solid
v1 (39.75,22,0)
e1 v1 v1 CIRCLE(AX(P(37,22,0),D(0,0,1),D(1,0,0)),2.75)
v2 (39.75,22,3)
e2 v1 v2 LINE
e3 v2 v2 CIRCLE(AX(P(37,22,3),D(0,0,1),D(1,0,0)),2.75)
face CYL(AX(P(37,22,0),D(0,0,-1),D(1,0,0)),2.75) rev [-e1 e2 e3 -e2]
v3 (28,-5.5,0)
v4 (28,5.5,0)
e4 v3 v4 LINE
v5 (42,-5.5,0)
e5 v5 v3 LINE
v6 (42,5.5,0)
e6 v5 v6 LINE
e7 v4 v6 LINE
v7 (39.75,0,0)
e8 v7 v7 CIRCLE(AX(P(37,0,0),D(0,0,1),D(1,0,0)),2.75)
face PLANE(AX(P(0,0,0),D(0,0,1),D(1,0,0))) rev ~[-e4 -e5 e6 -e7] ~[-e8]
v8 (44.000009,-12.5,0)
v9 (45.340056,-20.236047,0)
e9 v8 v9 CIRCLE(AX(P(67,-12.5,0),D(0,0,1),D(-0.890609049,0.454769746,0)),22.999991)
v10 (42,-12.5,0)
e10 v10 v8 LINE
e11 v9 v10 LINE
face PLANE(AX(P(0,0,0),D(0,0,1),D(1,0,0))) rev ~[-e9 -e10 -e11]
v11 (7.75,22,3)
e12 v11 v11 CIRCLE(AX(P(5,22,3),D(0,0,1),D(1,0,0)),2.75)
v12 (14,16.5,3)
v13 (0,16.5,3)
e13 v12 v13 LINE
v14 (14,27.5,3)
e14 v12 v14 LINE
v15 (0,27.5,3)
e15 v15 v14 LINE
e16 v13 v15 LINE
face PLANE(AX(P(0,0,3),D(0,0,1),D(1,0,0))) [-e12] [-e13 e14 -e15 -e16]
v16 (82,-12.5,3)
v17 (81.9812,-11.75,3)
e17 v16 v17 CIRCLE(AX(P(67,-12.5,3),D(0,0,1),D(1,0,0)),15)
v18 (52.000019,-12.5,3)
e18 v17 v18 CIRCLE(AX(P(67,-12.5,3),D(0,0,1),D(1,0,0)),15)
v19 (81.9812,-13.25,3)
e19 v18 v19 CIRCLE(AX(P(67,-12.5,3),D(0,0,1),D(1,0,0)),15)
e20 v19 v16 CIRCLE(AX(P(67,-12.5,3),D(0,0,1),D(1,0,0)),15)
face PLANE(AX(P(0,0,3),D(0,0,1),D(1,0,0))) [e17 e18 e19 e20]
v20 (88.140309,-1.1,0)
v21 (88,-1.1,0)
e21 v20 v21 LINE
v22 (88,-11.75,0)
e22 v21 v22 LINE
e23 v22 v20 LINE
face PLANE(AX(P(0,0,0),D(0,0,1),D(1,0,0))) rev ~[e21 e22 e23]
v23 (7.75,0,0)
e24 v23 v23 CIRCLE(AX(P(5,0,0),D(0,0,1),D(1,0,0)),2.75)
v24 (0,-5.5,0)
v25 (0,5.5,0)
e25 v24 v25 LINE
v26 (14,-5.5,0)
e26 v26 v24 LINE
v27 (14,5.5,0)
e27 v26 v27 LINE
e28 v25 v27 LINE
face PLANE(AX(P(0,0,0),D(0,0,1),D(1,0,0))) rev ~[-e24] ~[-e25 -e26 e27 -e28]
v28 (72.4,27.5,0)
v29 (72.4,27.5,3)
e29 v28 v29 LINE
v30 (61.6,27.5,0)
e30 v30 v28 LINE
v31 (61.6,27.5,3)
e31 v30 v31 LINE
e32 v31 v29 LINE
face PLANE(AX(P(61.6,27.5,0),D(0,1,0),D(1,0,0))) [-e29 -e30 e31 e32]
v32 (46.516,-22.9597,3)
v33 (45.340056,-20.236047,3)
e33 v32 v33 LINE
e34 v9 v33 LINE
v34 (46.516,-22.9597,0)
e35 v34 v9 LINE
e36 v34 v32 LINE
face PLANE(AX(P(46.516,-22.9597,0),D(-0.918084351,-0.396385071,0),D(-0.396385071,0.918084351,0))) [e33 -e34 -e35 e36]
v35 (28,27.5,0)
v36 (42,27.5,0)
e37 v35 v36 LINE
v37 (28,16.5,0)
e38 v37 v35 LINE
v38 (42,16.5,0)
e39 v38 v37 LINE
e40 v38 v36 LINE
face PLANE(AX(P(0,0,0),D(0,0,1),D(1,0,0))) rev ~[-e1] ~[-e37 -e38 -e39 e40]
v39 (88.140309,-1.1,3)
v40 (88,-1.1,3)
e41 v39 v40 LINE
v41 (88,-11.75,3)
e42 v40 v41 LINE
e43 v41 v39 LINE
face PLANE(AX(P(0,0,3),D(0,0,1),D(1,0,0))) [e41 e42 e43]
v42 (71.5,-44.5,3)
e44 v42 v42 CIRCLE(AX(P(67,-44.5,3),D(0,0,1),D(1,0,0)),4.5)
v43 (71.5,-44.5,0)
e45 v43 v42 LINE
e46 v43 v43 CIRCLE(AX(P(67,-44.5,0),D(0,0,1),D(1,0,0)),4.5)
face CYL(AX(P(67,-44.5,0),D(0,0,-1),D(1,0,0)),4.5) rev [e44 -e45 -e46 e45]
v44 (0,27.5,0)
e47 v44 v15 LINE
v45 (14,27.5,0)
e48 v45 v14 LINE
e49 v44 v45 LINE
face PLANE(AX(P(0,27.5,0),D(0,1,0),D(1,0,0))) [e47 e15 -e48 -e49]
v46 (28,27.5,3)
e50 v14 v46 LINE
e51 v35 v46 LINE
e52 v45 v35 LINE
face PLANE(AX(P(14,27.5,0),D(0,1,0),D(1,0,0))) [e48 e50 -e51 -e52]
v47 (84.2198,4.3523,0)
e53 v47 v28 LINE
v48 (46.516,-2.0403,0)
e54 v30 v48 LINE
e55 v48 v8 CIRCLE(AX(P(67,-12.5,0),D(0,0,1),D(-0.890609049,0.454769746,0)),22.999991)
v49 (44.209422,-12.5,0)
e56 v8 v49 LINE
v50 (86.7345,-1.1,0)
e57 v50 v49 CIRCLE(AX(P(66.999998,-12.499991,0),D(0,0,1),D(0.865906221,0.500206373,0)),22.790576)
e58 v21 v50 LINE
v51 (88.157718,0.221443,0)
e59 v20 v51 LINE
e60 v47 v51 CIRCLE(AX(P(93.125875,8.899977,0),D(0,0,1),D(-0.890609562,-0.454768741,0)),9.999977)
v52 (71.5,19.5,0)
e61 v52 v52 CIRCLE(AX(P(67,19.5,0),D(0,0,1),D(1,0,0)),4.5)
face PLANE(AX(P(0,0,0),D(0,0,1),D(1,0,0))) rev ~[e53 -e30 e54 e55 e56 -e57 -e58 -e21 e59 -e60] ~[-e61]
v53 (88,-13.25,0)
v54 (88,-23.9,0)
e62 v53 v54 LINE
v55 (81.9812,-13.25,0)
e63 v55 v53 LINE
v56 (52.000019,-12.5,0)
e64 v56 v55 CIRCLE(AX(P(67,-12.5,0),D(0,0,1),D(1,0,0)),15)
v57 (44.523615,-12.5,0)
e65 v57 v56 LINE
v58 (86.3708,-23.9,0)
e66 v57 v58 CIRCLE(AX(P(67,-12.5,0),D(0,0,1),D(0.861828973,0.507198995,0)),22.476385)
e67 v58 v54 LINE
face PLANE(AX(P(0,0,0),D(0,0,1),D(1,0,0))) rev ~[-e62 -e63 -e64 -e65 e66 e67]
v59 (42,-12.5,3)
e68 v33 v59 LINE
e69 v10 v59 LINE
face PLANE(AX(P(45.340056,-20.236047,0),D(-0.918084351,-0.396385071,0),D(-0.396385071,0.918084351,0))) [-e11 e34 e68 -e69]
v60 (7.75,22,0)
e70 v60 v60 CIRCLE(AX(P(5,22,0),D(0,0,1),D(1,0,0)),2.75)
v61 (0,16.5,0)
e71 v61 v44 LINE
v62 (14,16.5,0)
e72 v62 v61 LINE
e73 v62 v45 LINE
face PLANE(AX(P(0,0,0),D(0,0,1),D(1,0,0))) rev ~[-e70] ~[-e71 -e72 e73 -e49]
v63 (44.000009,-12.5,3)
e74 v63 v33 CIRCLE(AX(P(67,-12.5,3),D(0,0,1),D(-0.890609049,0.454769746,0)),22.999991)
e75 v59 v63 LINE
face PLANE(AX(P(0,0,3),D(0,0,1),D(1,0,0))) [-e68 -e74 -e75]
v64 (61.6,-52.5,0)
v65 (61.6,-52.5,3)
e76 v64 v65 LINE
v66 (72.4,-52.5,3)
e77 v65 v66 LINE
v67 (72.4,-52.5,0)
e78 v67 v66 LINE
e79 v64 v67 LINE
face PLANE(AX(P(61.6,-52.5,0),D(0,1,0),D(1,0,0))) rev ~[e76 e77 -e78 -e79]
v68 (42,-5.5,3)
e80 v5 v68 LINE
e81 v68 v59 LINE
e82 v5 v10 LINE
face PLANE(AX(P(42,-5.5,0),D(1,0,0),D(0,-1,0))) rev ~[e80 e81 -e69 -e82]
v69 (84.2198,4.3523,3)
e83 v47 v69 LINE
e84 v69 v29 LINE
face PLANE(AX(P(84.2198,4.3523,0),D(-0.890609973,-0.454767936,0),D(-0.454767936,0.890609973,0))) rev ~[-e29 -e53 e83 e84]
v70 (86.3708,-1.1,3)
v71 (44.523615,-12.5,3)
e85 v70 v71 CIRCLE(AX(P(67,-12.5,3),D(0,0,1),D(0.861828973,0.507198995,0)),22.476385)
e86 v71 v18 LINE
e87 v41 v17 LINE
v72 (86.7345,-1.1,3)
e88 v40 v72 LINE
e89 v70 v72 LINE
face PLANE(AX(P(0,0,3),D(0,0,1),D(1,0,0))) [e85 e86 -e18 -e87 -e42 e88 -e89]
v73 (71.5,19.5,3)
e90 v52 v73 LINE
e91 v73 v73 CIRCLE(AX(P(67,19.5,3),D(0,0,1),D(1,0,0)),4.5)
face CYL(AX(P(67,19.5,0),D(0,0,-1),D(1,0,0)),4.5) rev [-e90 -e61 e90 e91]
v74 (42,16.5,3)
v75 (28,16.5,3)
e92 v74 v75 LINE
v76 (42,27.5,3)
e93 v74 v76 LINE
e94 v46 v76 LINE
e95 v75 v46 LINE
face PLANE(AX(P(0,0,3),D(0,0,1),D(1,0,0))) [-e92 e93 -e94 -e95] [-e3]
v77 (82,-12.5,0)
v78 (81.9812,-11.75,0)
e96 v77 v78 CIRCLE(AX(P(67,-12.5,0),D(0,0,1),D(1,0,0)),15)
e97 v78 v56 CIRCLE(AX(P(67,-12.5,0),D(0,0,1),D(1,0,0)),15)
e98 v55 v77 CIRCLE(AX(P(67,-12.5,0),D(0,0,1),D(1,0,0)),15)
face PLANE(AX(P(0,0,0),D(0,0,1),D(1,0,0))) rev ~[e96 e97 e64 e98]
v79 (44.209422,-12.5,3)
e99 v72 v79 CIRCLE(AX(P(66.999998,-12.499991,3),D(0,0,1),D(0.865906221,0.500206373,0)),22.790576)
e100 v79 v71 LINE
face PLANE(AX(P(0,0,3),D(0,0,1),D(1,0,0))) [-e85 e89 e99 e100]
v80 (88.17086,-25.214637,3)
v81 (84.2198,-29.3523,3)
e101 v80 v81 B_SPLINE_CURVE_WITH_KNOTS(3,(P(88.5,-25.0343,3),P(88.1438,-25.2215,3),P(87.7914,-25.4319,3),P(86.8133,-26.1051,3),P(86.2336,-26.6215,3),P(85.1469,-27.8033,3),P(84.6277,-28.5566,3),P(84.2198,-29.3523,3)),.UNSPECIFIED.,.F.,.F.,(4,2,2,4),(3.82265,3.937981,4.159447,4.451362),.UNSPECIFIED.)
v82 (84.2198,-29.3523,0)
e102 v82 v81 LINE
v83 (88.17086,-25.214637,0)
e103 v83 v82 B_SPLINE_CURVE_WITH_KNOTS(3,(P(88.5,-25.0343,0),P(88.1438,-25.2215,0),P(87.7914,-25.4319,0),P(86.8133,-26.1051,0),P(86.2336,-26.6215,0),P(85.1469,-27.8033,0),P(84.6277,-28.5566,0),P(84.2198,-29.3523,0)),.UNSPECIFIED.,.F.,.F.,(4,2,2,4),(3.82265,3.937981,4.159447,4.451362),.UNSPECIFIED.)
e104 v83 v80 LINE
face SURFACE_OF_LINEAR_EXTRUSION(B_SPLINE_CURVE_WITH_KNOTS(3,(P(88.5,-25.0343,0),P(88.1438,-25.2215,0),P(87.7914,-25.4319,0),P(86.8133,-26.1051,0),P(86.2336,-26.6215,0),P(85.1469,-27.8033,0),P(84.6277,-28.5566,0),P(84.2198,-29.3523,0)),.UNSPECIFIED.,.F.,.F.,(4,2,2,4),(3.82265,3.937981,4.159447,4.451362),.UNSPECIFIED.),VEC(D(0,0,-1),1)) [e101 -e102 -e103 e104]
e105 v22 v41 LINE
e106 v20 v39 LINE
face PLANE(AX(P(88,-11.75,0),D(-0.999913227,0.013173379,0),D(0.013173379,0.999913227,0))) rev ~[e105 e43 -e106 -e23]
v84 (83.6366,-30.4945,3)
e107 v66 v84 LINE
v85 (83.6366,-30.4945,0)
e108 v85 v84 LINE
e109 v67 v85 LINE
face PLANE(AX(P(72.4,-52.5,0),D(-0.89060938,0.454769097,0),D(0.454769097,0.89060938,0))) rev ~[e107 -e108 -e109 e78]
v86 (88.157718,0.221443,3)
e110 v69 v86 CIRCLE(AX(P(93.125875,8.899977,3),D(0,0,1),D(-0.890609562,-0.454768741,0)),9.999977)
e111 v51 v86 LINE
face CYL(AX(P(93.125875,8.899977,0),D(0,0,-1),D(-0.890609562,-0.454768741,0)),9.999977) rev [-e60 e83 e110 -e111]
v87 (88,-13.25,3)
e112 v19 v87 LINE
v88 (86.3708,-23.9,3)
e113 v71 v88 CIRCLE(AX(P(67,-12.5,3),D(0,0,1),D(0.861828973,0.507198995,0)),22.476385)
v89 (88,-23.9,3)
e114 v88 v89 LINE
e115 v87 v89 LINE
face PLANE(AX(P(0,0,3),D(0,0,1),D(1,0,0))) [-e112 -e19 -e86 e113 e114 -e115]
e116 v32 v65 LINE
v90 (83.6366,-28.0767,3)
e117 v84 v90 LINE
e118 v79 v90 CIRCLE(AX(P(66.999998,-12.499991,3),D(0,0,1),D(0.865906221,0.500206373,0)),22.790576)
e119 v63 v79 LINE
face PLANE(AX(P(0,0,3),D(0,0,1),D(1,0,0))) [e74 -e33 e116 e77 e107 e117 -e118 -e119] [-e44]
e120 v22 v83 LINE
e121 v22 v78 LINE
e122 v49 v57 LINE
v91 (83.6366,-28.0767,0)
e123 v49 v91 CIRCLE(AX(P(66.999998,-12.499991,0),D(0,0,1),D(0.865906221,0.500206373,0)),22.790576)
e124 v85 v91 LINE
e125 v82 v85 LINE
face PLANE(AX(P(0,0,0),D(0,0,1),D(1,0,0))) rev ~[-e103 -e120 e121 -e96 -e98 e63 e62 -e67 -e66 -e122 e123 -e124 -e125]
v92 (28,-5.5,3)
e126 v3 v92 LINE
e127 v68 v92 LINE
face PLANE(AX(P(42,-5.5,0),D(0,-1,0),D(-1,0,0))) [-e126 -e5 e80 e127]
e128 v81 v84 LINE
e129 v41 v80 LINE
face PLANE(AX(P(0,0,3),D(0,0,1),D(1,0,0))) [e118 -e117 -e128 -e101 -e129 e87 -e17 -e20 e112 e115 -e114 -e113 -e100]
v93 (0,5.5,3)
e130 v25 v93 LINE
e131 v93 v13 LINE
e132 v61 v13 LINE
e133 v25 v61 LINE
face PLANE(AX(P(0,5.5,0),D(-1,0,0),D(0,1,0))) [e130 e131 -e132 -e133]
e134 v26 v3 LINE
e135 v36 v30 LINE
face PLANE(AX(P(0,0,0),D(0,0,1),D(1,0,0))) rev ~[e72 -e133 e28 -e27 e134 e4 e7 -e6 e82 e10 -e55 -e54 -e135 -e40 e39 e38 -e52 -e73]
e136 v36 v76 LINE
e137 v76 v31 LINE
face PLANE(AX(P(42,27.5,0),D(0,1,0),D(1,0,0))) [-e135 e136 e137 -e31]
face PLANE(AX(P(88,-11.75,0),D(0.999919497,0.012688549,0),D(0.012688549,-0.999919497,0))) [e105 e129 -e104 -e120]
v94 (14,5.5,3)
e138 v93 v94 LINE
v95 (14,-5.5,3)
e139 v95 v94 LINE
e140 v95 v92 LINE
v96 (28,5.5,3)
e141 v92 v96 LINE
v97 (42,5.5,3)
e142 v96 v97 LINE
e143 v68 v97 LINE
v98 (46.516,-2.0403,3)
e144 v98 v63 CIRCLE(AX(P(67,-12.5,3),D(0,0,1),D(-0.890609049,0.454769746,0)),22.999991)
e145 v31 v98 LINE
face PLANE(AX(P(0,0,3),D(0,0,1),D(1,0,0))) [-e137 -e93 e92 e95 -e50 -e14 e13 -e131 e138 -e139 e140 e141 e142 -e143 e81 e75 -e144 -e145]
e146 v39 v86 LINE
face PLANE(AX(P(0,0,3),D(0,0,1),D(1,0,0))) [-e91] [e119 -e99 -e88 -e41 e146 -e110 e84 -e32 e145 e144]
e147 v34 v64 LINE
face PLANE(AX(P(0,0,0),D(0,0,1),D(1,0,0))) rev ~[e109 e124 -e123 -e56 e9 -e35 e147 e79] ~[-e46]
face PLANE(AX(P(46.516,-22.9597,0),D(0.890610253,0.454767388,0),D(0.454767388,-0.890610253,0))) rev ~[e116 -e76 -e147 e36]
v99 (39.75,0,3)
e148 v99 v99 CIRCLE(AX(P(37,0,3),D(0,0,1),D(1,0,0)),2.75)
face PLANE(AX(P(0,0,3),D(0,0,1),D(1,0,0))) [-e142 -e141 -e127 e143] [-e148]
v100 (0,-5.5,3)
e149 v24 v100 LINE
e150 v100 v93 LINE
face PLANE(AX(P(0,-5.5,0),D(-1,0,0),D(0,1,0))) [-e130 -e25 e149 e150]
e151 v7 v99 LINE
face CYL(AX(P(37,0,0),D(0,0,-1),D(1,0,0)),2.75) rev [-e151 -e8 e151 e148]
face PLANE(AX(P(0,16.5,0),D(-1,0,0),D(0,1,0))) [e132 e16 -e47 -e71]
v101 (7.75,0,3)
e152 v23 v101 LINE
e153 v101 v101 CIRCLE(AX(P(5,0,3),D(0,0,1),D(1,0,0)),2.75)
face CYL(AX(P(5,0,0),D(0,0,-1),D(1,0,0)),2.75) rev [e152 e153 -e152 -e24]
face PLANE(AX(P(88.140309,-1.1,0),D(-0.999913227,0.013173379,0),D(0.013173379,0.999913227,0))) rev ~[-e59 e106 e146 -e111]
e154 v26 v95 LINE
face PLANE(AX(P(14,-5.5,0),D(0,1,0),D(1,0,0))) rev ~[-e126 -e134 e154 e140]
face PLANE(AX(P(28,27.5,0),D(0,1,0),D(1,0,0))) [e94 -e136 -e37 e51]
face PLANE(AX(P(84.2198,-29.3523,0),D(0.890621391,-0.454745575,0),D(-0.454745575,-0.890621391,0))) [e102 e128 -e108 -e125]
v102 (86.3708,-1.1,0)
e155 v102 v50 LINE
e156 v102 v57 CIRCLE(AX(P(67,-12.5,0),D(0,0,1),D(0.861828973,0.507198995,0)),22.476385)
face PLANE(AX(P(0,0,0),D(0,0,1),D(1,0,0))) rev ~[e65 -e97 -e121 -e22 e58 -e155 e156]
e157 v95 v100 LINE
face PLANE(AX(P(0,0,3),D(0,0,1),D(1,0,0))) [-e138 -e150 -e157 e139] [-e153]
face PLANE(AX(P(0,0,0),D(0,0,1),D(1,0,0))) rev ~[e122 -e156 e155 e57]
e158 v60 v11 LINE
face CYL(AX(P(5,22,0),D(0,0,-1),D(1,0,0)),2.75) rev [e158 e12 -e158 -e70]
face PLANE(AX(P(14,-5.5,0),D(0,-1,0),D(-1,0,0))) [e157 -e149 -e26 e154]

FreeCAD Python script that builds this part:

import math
import FreeCAD as App
import Part
import Sketcher
Q = App.Units.Quantity

doc = App.newDocument("Part")
params = doc.addObject("Spreadsheet::Sheet", "Params")
for row, (alias, value) in enumerate([
    ("sketch1_diameter", "9 mm"),
    ("sketch1_diameter2", "9 mm"),
    ("sketch1_radius", "10 mm"),
    ("sketch1_diameter3", "5.5 mm"),
    ("sketch1_diameter4", "5.5 mm"),
    ("pad1_length", "3 mm"),
], start=1):
    params.set(f"A{row}", alias)
    params.set(f"B{row}", "=" + value)
    params.setAlias(f"B{row}", alias)

body = doc.addObject("PartDesign::Body", "Body")

sketch1 = doc.addObject("Sketcher::SketchObject", "Sketch")
body.addObject(sketch1)
sketch1.AttachmentSupport = (doc.XY_Plane, [""])
sketch1.MapMode = "FlatFace"
sketch1.addGeometry([
    Part.LineSegment(App.Vector(0, -5.5, 0), App.Vector(42, -5.5, 0)),
    Part.LineSegment(App.Vector(42, -5.5, 0), App.Vector(42, -12.5, 0)),
    Part.LineSegment(App.Vector(42, -12.5, 0), App.Vector(46.516, -22.9597, 0)),
    Part.LineSegment(App.Vector(46.516, -22.9597, 0), App.Vector(61.6, -52.5, 0)),
    Part.LineSegment(App.Vector(61.6, -52.5, 0), App.Vector(72.4, -52.5, 0)),
    Part.LineSegment(App.Vector(72.4, -52.5, 0), App.Vector(83.6366, -30.4945, 0)),
    Part.LineSegment(App.Vector(83.6366, -30.4945, 0), App.Vector(84.2198, -29.3523, 0)),
    Part.BSplineCurve([App.Vector(88.17086, -25.214637, 0), App.Vector(87.9274, -25.353627, 0), App.Vector(87.687768, -25.503227, 0), App.Vector(86.8133, -26.1051, 0), App.Vector(86.2336, -26.6215, 0), App.Vector(85.1469, -27.8033, 0), App.Vector(84.6277, -28.5566, 0), App.Vector(84.2198, -29.3523, 0)], [4, 2, 2, 4], [3.858334581, 3.937981, 4.159447, 4.451362], False, 3, [1, 1, 1, 1, 1, 1, 1, 1], False),
    Part.LineSegment(App.Vector(88.17086, -25.214637, 0), App.Vector(88, -11.75, 0)),
    Part.LineSegment(App.Vector(88, -11.75, 0), App.Vector(88.157718, 0.221443, 0)),
    Part.ArcOfCircle(Part.Circle(App.Vector(93.1259, 8.9, 0), App.Vector(0, 0, 1), 10.00001), math.radians(-152.949892), math.radians(-119.789685)),
    Part.LineSegment(App.Vector(84.2198, 4.3523, 0), App.Vector(72.4, 27.5, 0)),
    Part.LineSegment(App.Vector(72.4, 27.5, 0), App.Vector(0, 27.5, 0)),
    Part.LineSegment(App.Vector(0, 27.5, 0), App.Vector(0, -5.5, 0)),
    Part.Circle(App.Vector(5, 0, 0), App.Vector(0, 0, 1), 2.75),
    Part.Circle(App.Vector(37, 0, 0), App.Vector(0, 0, 1), 2.75),
    Part.Circle(App.Vector(5, 22, 0), App.Vector(0, 0, 1), 2.75),
    Part.Circle(App.Vector(37, 22, 0), App.Vector(0, 0, 1), 2.75),
    Part.Circle(App.Vector(67, 19.5, 0), App.Vector(0, 0, 1), 4.5),
    Part.Circle(App.Vector(67, -44.5, 0), App.Vector(0, 0, 1), 4.5),
], False)
sketch1.addConstraint([
    Sketcher.Constraint("Block", 7),
    Sketcher.Constraint("Coincident", 0, 2, 1, 1),
    Sketcher.Constraint("Coincident", 1, 2, 2, 1),
    Sketcher.Constraint("Coincident", 2, 2, 3, 1),
    Sketcher.Constraint("Coincident", 3, 2, 4, 1),
    Sketcher.Constraint("Coincident", 4, 2, 5, 1),
    Sketcher.Constraint("Coincident", 5, 2, 6, 1),
    Sketcher.Constraint("Coincident", 6, 2, 7, 2),
    Sketcher.Constraint("Coincident", 7, 1, 8, 1),
    Sketcher.Constraint("Coincident", 8, 2, 9, 1),
    Sketcher.Constraint("Coincident", 9, 2, 10, 2),
    Sketcher.Constraint("Coincident", 10, 1, 11, 1),
    Sketcher.Constraint("Coincident", 11, 2, 12, 1),
    Sketcher.Constraint("Coincident", 12, 2, 13, 1),
    Sketcher.Constraint("Coincident", 13, 2, 0, 1),
    Sketcher.Constraint("Horizontal", 0),
    Sketcher.Constraint("Vertical", 1),
    Sketcher.Constraint("Horizontal", 4),
    Sketcher.Constraint("Horizontal", 12),
    Sketcher.Constraint("Vertical", 13),
    Sketcher.Constraint("PointOnObject", 14, 3, -1),
    Sketcher.Constraint("PointOnObject", 15, 3, -1),
    Sketcher.Constraint("PointOnObject", 12, 2, -2),
    Sketcher.Constraint("Diameter", 18, Q("9 mm")),
    Sketcher.Constraint("Diameter", 19, Q("9 mm")),
    Sketcher.Constraint("Radius", 10, Q("10 mm")),
    Sketcher.Constraint("DistanceX", 17, 3, 18, 3, Q("30 mm")),
    Sketcher.Constraint("DistanceX", 15, 3, 18, 3, Q("30 mm")),
    Sketcher.Constraint("DistanceX", 15, 3, 19, 3, Q("30 mm")),
    Sketcher.Constraint("DistanceX", 0, 2, 18, 3, Q("25 mm")),
    Sketcher.Constraint("DistanceY", 0, 2, 18, 3, Q("25 mm")),
    Sketcher.Constraint("DistanceY", 3, 2, 1, 2, Q("40 mm")),
    Sketcher.Constraint("Diameter", 14, Q("5.5 mm")),
    Sketcher.Constraint("Diameter", 15, Q("5.5 mm")),
    Sketcher.Constraint("Diameter", 16, Q("5.5 mm")),
    Sketcher.Constraint("Diameter", 17, Q("5.5 mm")),
    Sketcher.Constraint("DistanceX", 0, 1, 0, 2, Q("42 mm")),
    Sketcher.Constraint("DistanceY", 1, 2, 1, 1, Q("7 mm")),
    Sketcher.Constraint("DistanceY", 13, 2, 13, 1, Q("33 mm")),
    Sketcher.Constraint("DistanceX", 4, 1, 4, 2, Q("10.8 mm")),
    Sketcher.Constraint("DistanceX", 12, 2, 12, 1, Q("72.4 mm")),
    Sketcher.Constraint("DistanceX", -1, 1, 14, 3, Q("5 mm")),
    Sketcher.Constraint("DistanceX", -1, 1, 16, 3, Q("5 mm")),
    Sketcher.Constraint("DistanceY", -1, 1, 16, 3, Q("22 mm")),
    Sketcher.Constraint("DistanceY", -1, 1, 17, 3, Q("22 mm")),
    Sketcher.Constraint("DistanceX", -1, 1, 8, 2, Q("88 mm")),
    Sketcher.Constraint("DistanceY", 19, 3, 18, 3, Q("64 mm")),
    Sketcher.Constraint("DistanceY", -1, 1, 10, 3, Q("8.9 mm")),
    Sketcher.Constraint("DistanceY", -1, 1, 18, 3, Q("19.5 mm")),
    Sketcher.Constraint("DistanceX", -1, 1, 3, 2, Q("61.6 mm")),
    Sketcher.Constraint("DistanceY", 8, 2, -1, 1, Q("11.75 mm")),
    Sketcher.Constraint("Distance", 2, Q("11.393 mm")),
    Sketcher.Constraint("DistanceX", -1, 1, 10, 3, Q("93.126 mm")),
    Sketcher.Constraint("DistanceX", -1, 1, 2, 2, Q("46.516 mm")),
    Sketcher.Constraint("DistanceX", 6, 2, 9, 2, Q("3.938 mm")),
    Sketcher.Constraint("DistanceX", 5, 2, 9, 2, Q("4.521 mm")),
    Sketcher.Constraint("DistanceY", 5, 2, 9, 2, Q("30.716 mm")),
    Sketcher.Constraint("DistanceX", 10, 1, 9, 2, Q("3.938 mm")),
])
sketch1.setExpression("Constraints[23]", "Params.sketch1_diameter")
sketch1.setExpression("Constraints[24]", "Params.sketch1_diameter2")
sketch1.setExpression("Constraints[25]", "Params.sketch1_radius")
sketch1.setExpression("Constraints[32]", "Params.sketch1_diameter3")
sketch1.setExpression("Constraints[33]", "Params.sketch1_diameter4")
pad1 = doc.addObject("PartDesign::Pad", "Pad")
body.addObject(pad1)
pad1.Profile = sketch1
pad1.setExpression("Length", "Params.pad1_length")

doc.recompute()
